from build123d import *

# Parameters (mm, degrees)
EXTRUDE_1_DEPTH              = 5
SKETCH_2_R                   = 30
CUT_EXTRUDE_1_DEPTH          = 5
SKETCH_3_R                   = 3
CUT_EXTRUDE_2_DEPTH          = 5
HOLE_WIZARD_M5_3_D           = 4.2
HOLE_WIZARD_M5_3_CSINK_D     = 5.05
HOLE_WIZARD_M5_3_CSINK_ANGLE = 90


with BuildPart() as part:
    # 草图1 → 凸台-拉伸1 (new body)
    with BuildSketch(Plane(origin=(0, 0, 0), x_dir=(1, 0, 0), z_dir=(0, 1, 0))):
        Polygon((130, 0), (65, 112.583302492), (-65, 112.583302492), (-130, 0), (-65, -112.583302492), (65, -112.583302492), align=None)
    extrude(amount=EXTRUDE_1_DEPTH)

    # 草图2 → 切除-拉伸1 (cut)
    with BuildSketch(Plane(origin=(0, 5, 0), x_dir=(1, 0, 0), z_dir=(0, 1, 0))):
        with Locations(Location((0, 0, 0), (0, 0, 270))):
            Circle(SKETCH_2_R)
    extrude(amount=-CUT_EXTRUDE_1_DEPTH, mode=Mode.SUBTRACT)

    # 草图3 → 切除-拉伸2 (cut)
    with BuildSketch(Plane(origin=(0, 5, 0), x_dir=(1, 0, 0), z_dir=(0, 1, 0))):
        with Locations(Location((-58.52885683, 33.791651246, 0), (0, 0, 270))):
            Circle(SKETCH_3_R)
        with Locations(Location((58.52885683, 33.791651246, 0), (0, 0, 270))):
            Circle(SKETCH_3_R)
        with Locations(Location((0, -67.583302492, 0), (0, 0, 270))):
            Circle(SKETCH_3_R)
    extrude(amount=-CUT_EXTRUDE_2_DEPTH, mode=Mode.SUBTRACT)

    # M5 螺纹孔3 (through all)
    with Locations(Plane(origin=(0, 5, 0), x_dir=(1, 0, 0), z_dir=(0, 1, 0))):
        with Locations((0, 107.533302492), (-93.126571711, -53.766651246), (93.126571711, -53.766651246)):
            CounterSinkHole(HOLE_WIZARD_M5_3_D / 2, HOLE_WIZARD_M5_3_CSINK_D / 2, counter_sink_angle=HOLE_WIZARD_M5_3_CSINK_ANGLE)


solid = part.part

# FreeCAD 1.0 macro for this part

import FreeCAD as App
import Part
import Sketcher
from FreeCAD import Vector
Q = App.Units.Quantity

doc = App.newDocument("Part")
params = doc.addObject("Spreadsheet::Sheet", "Params")
for row, (alias, value) in enumerate([
    ("sketch1_width", "130 mm"),
    ("sketch1_length", "130 mm"),
    ("pad1_length", "5 mm"),
    ("sketch2_diameter", "60 mm"),
    ("pocket1_length", "5 mm"),
    ("sketch3_diameter", "6 mm"),
    ("pocket2_length", "5 mm"),
    ("sketch4_diameter", "4.2 mm"),
    ("hole_diameter", "4.2 mm"),
    ("hole_csink_diameter", "5.05 mm"),
], start=1):
    params.set(f"A{row}", alias)
    params.set(f"B{row}", "=" + value)
    params.setAlias(f"B{row}", alias)

body = doc.addObject("PartDesign::Body", "Body")

# Sketch on XZ plane
sketch1 = body.newObject("Sketcher::SketchObject", "Sketch")
sketch1.AttachmentSupport = (doc.getObject("XZ_Plane"), [""])
sketch1.MapMode = "FlatFace"
sketch1.addGeometry(Part.LineSegment(Vector(130, 0, 0), Vector(65, -112.583302, 0)), False)
sketch1.addGeometry(Part.LineSegment(Vector(65, -112.583302, 0), Vector(-65, -112.583302, 0)), False)
sketch1.addGeometry(Part.LineSegment(Vector(-65, -112.583302, 0), Vector(-130, 0, 0)), False)
sketch1.addGeometry(Part.LineSegment(Vector(-130, 0, 0), Vector(-65, 112.583302, 0)), False)
sketch1.addGeometry(Part.LineSegment(Vector(-65, 112.583302, 0), Vector(65, 112.583302, 0)), False)
sketch1.addGeometry(Part.LineSegment(Vector(65, 112.583302, 0), Vector(130, 0, 0)), False)
sketch1.addConstraint(Sketcher.Constraint("Coincident", 0, 2, 1, 1))
sketch1.addConstraint(Sketcher.Constraint("Coincident", 1, 2, 2, 1))
sketch1.addConstraint(Sketcher.Constraint("Coincident", 2, 2, 3, 1))
sketch1.addConstraint(Sketcher.Constraint("Coincident", 3, 2, 4, 1))
sketch1.addConstraint(Sketcher.Constraint("Coincident", 4, 2, 5, 1))
sketch1.addConstraint(Sketcher.Constraint("Coincident", 5, 2, 0, 1))
sketch1.addConstraint(Sketcher.Constraint("Horizontal", 1))
sketch1.addConstraint(Sketcher.Constraint("Horizontal", 4))
sketch1.addConstraint(Sketcher.Constraint("Symmetric", 0, 2, 3, 2, -1, 1))
sketch1.addConstraint(Sketcher.Constraint("Symmetric", 2, 2, 5, 2, -1, 1))
sketch1.addConstraint(Sketcher.Constraint("PointOnObject", 2, 2, -1))
sketch1.addConstraint(Sketcher.Constraint("Parallel", 2, 5))
sketch1.addConstraint(Sketcher.Constraint("Vertical", 1, 2, 3, 2))
sketch1.addConstraint(Sketcher.Constraint("DistanceX", 1, 2, 1, 1, 130.0))
sketch1.addConstraint(Sketcher.Constraint("Angle", 0, Q("-120 deg")))
sketch1.addConstraint(Sketcher.Constraint("Distance", 0, 130.0))
sketch1.setExpression("Constraints[13]", "Params.sketch1_width")
sketch1.setExpression("Constraints[15]", "Params.sketch1_length")
pad1 = body.newObject("PartDesign::Pad", "Pad")
pad1.Profile = sketch1
pad1.setExpression("Length", "Params.pad1_length")
pad1.Reversed = True

# Sketch on XZ plane
sketch2 = body.newObject("Sketcher::SketchObject", "Sketch001")
sketch2.AttachmentSupport = (doc.getObject("XZ_Plane"), [""])
sketch2.MapMode = "FlatFace"
sketch2.AttachmentOffset = App.Placement(Vector(0, 0, -5), App.Rotation())
sketch2.addGeometry(Part.Circle(Vector(0, 0, 0), Vector(0, 0, 1), 30), False)
sketch2.addConstraint(Sketcher.Constraint("Coincident", 0, 3, -1, 1))
sketch2.addConstraint(Sketcher.Constraint("Diameter", 0, 60.0))
sketch2.setExpression("Constraints[1]", "Params.sketch2_diameter")
pocket1 = body.newObject("PartDesign::Pocket", "Pocket")
pocket1.Profile = sketch2
pocket1.setExpression("Length", "Params.pocket1_length")
pocket1.Reversed = True

# Sketch on XZ plane
sketch3 = body.newObject("Sketcher::SketchObject", "Sketch002")
sketch3.AttachmentSupport = (doc.getObject("XZ_Plane"), [""])
sketch3.MapMode = "FlatFace"
sketch3.AttachmentOffset = App.Placement(Vector(0, 0, -5), App.Rotation())
sketch3.addGeometry(Part.Circle(Vector(-58.528857, -33.791651, 0), Vector(0, 0, 1), 3), False)
sketch3.addGeometry(Part.Circle(Vector(58.528857, -33.791651, 0), Vector(0, 0, 1), 3), False)
sketch3.addGeometry(Part.Circle(Vector(0, 67.583302, 0), Vector(0, 0, 1), 3), False)
sketch3.addConstraint(Sketcher.Constraint("Equal", 0, 1))
sketch3.addConstraint(Sketcher.Constraint("Equal", 1, 2))
sketch3.addConstraint(Sketcher.Constraint("Symmetric", 0, 3, 1, 3, -2))
sketch3.addConstraint(Sketcher.Constraint("PointOnObject", 2, 3, -2))
sketch3.addConstraint(Sketcher.Constraint("Diameter", 0, 6.0))
sketch3.addConstraint(Sketcher.Constraint("DistanceY", 0, 3, -1, 1, 33.791651))
sketch3.addConstraint(Sketcher.Constraint("DistanceX", 0, 3, -1, 1, 58.528857))
sketch3.addConstraint(Sketcher.Constraint("DistanceY", -1, 1, 2, 3, 67.583302))
sketch3.setExpression("Constraints[4]", "Params.sketch3_diameter")
pocket2 = body.newObject("PartDesign::Pocket", "Pocket001")
pocket2.Profile = sketch3
pocket2.setExpression("Length", "Params.pocket2_length")
pocket2.Reversed = True

# Sketch on XZ plane
sketch4 = body.newObject("Sketcher::SketchObject", "Sketch003")
sketch4.AttachmentSupport = (doc.getObject("XZ_Plane"), [""])
sketch4.MapMode = "FlatFace"
sketch4.AttachmentOffset = App.Placement(Vector(0, 0, -5), App.Rotation())
sketch4.addGeometry(Part.Circle(Vector(0, -107.533302, 0), Vector(0, 0, 1), 2.1), False)
sketch4.addGeometry(Part.Circle(Vector(-93.126572, 53.766651, 0), Vector(0, 0, 1), 2.1), False)
sketch4.addGeometry(Part.Circle(Vector(93.126572, 53.766651, 0), Vector(0, 0, 1), 2.1), False)
sketch4.addConstraint(Sketcher.Constraint("Equal", 0, 1))
sketch4.addConstraint(Sketcher.Constraint("Equal", 1, 2))
sketch4.addConstraint(Sketcher.Constraint("Symmetric", 1, 3, 2, 3, -2))
sketch4.addConstraint(Sketcher.Constraint("PointOnObject", 0, 3, -2))
sketch4.addConstraint(Sketcher.Constraint("Diameter", 0, 4.2))
sketch4.addConstraint(Sketcher.Constraint("DistanceX", 1, 3, -1, 1, 93.126572))
sketch4.addConstraint(Sketcher.Constraint("DistanceY", -1, 1, 1, 3, 53.766651))
sketch4.addConstraint(Sketcher.Constraint("DistanceY", 0, 3, -1, 1, 107.533302))
sketch4.setExpression("Constraints[4]", "Params.sketch4_diameter")
doc.recompute()
hole = body.newObject("PartDesign::Hole", "Hole")
hole.Profile = sketch4
hole.ThreadType = "None"
hole.setExpression("Diameter", "Params.hole_diameter")
hole.DepthType = "ThroughAll"
hole.HoleCutType = "Countersink"
hole.setExpression("HoleCutDiameter", "Params.hole_csink_diameter")
hole.HoleCutCountersinkAngle = 90
hole.Reversed = True

doc.recompute()
